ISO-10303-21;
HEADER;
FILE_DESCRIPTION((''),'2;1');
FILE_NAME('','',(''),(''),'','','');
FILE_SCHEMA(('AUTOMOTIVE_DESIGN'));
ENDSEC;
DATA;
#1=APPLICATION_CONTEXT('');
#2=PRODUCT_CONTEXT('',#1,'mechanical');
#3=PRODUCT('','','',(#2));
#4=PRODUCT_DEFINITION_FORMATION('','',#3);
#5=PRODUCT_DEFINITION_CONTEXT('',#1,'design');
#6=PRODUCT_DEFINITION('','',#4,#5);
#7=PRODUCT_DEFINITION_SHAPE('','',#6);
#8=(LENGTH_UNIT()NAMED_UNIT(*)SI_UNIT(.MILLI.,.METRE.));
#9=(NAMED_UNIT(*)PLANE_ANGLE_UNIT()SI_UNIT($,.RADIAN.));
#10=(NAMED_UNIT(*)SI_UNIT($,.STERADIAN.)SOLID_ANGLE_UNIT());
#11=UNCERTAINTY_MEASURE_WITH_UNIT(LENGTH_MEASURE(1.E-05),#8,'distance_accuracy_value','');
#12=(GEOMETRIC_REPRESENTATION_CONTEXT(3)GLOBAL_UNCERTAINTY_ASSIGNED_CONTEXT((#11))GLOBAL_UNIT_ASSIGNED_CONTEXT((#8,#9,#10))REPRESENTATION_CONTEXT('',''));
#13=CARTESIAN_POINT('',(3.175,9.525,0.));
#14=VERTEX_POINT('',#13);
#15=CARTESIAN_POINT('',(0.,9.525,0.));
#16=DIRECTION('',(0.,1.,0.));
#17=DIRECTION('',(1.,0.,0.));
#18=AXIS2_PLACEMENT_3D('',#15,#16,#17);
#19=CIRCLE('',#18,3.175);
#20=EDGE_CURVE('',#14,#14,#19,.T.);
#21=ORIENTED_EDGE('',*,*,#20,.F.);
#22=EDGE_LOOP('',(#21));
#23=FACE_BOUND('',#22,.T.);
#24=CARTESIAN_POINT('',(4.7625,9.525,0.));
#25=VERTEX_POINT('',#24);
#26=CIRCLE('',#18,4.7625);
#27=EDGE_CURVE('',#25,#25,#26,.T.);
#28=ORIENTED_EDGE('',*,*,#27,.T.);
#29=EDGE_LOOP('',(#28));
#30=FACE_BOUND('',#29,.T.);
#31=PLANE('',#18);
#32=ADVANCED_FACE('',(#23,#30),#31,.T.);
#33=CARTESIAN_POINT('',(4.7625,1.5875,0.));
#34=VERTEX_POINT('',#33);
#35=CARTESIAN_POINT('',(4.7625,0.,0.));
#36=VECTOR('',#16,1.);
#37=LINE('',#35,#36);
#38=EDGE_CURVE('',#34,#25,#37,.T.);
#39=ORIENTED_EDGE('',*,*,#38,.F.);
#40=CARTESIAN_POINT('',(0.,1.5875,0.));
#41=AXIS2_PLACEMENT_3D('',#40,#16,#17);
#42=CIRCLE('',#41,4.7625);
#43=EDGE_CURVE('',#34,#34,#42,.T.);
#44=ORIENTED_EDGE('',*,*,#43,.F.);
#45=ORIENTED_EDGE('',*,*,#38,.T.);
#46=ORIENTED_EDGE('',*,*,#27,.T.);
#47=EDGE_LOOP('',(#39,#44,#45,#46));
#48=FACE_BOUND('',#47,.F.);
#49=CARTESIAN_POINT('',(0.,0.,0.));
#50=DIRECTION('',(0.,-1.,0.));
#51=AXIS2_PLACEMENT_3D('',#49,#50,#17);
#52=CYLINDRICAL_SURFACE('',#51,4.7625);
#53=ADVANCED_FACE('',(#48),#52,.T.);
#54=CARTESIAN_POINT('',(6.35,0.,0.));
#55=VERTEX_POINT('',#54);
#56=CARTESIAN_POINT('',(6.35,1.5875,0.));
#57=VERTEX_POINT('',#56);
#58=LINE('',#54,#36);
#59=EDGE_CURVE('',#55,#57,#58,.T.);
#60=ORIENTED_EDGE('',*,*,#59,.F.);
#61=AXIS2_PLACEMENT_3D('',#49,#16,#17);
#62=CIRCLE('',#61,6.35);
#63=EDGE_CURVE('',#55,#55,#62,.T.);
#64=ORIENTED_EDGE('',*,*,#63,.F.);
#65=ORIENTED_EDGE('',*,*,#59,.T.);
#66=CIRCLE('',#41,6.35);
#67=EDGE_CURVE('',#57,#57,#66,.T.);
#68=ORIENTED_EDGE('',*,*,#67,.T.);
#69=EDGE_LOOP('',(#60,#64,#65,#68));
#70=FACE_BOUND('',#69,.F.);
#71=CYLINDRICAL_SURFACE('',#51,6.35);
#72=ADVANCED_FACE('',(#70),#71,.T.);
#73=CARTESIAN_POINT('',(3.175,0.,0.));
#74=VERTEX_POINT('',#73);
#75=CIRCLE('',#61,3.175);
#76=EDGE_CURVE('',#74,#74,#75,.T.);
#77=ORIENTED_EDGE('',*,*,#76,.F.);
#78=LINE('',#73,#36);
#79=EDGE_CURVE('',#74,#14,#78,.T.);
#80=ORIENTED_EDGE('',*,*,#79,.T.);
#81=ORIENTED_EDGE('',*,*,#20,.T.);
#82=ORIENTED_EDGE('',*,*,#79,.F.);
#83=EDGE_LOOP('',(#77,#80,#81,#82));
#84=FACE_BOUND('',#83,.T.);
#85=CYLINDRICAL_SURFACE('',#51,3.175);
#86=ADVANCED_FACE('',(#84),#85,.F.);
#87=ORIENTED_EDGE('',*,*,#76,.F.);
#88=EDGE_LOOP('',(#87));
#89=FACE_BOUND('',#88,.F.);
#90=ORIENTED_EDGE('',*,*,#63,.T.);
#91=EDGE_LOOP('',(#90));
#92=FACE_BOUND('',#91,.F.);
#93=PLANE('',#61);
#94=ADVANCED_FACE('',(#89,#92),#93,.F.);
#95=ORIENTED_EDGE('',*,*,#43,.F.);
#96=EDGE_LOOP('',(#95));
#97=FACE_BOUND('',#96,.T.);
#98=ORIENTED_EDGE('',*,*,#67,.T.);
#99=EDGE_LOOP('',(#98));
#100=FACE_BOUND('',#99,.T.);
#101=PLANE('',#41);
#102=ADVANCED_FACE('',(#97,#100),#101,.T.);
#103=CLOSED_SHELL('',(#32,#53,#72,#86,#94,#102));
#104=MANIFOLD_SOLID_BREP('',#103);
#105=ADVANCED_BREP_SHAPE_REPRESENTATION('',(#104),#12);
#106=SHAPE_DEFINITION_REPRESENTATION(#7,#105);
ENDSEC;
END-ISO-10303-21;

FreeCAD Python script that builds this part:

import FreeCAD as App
import Part
import Sketcher
from FreeCAD import Vector
Q = App.Units.Quantity

doc = App.newDocument("Part")
body = doc.addObject("PartDesign::Body", "Body")

sketch1 = body.newObject("Sketcher::SketchObject", "Sketch")
sketch1.AttachmentSupport = (doc.getObject("XZ_Plane"), [""])
sketch1.MapMode = "FlatFace"
sketch1.addGeometry(Part.Circle(Vector(0, 0, 0), Vector(0, 0, 1), 4.8), False)
sketch1.addGeometry(Part.Circle(Vector(0, 0, 0), Vector(0, 0, 1), 3.2), False)
sketch1.addConstraint(Sketcher.Constraint("Coincident", 0, 3, -1, 1))
sketch1.addConstraint(Sketcher.Constraint("Coincident", 1, 3, -1, 1))
sketch1.addConstraint(Sketcher.Constraint("Diameter", 1, Q("0.25 in")))
sketch1.addConstraint(Sketcher.Constraint("Diameter", 0, Q("0.375 in")))
pad1 = body.newObject("PartDesign::Pad", "Pad")
pad1.Profile = sketch1
pad1.Length = Q("0.375 in")
pad1.Reversed = True

sketch2 = body.newObject("Sketcher::SketchObject", "Sketch001")
sketch2.AttachmentSupport = (doc.getObject("XZ_Plane"), [""])
sketch2.MapMode = "FlatFace"
sketch2.addGeometry(Part.Circle(Vector(0, 0, 0), Vector(0, 0, 1), 6.3), False)
sketch2.addGeometry(Part.Circle(Vector(0, 0, 0), Vector(0, 0, 1), 4.8), False)
sketch2.addConstraint(Sketcher.Constraint("Coincident", 0, 3, -1, 1))
sketch2.addConstraint(Sketcher.Constraint("Coincident", 1, 3, -1, 1))
sketch2.addConstraint(Sketcher.Constraint("Diameter", 0, Q("0.5 in")))
sketch2.addConstraint(Sketcher.Constraint("Diameter", 1, Q("0.375 in")))
pad2 = body.newObject("PartDesign::Pad", "Pad001")
pad2.Profile = sketch2
pad2.Length = Q("0.0625 in")
pad2.Reversed = True

doc.recompute()
